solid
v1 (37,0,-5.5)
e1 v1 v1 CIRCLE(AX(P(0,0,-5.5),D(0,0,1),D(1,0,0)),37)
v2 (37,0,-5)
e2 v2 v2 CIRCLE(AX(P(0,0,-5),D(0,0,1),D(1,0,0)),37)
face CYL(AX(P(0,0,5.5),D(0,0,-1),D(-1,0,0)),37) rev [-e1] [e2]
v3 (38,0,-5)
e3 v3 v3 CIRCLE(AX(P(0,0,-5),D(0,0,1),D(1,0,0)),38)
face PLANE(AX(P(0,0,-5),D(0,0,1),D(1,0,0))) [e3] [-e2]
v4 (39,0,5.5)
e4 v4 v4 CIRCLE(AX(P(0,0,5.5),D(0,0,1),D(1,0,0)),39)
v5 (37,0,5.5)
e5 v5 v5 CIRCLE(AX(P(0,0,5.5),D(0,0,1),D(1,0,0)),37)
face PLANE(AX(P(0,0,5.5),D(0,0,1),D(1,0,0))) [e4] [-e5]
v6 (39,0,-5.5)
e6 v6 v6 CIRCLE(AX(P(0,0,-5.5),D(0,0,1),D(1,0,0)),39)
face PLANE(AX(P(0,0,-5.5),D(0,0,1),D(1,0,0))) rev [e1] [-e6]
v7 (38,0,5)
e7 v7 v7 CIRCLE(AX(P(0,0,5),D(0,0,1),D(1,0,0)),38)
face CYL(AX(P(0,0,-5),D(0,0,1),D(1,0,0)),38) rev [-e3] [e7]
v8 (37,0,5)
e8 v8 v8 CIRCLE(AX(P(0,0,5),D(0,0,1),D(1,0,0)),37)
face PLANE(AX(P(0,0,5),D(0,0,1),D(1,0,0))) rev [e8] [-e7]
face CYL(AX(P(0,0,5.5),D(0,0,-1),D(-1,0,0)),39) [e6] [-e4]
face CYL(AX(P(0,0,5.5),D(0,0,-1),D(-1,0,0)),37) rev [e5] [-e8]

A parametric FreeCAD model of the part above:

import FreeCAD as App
import Part
import Sketcher
from FreeCAD import Vector
Q = App.Units.Quantity

doc = App.newDocument("Part")
body = doc.addObject("PartDesign::Body", "Body")

sketch1 = body.newObject("Sketcher::SketchObject", "Sketch")
sketch1.AttachmentSupport = (doc.getObject("XY_Plane"), [""])
sketch1.MapMode = "FlatFace"
sketch1.addGeometry(Part.Circle(Vector(0, 0, 0), Vector(0, 0, 1), 39), False)
sketch1.addGeometry(Part.Circle(Vector(0, 0, 0), Vector(0, 0, 1), 37), False)
sketch1.addConstraint(Sketcher.Constraint("Coincident", 0, 3, -1, 1))
sketch1.addConstraint(Sketcher.Constraint("Coincident", 1, 3, -1, 1))
sketch1.addConstraint(Sketcher.Constraint("Diameter", 0, Q("78 mm")))
sketch1.addConstraint(Sketcher.Constraint("Diameter", 1, Q("74 mm")))
pad1 = body.newObject("PartDesign::Pad", "Pad")
pad1.Profile = sketch1
pad1.Length = 11
pad1.Midplane = True

sketch2 = body.newObject("Sketcher::SketchObject", "Sketch001")
sketch2.AttachmentSupport = (doc.getObject("XY_Plane"), [""])
sketch2.MapMode = "FlatFace"
sketch2.addGeometry(Part.Circle(Vector(0, 0, 0), Vector(0, 0, 1), 38), False)
sketch2.addGeometry(Part.Circle(Vector(0, 0, 0), Vector(0, 0, 1), 37), False)
sketch2.addConstraint(Sketcher.Constraint("Coincident", 0, 3, -1, 1))
sketch2.addConstraint(Sketcher.Constraint("Coincident", 1, 3, -1, 1))
sketch2.addConstraint(Sketcher.Constraint("Diameter", 0, Q("76 mm")))
sketch2.addConstraint(Sketcher.Constraint("Diameter", 1, Q("74 mm")))
pocket1 = body.newObject("PartDesign::Pocket", "Pocket")
pocket1.Profile = sketch2
pocket1.Length = 10
pocket1.Midplane = True

doc.recompute()
